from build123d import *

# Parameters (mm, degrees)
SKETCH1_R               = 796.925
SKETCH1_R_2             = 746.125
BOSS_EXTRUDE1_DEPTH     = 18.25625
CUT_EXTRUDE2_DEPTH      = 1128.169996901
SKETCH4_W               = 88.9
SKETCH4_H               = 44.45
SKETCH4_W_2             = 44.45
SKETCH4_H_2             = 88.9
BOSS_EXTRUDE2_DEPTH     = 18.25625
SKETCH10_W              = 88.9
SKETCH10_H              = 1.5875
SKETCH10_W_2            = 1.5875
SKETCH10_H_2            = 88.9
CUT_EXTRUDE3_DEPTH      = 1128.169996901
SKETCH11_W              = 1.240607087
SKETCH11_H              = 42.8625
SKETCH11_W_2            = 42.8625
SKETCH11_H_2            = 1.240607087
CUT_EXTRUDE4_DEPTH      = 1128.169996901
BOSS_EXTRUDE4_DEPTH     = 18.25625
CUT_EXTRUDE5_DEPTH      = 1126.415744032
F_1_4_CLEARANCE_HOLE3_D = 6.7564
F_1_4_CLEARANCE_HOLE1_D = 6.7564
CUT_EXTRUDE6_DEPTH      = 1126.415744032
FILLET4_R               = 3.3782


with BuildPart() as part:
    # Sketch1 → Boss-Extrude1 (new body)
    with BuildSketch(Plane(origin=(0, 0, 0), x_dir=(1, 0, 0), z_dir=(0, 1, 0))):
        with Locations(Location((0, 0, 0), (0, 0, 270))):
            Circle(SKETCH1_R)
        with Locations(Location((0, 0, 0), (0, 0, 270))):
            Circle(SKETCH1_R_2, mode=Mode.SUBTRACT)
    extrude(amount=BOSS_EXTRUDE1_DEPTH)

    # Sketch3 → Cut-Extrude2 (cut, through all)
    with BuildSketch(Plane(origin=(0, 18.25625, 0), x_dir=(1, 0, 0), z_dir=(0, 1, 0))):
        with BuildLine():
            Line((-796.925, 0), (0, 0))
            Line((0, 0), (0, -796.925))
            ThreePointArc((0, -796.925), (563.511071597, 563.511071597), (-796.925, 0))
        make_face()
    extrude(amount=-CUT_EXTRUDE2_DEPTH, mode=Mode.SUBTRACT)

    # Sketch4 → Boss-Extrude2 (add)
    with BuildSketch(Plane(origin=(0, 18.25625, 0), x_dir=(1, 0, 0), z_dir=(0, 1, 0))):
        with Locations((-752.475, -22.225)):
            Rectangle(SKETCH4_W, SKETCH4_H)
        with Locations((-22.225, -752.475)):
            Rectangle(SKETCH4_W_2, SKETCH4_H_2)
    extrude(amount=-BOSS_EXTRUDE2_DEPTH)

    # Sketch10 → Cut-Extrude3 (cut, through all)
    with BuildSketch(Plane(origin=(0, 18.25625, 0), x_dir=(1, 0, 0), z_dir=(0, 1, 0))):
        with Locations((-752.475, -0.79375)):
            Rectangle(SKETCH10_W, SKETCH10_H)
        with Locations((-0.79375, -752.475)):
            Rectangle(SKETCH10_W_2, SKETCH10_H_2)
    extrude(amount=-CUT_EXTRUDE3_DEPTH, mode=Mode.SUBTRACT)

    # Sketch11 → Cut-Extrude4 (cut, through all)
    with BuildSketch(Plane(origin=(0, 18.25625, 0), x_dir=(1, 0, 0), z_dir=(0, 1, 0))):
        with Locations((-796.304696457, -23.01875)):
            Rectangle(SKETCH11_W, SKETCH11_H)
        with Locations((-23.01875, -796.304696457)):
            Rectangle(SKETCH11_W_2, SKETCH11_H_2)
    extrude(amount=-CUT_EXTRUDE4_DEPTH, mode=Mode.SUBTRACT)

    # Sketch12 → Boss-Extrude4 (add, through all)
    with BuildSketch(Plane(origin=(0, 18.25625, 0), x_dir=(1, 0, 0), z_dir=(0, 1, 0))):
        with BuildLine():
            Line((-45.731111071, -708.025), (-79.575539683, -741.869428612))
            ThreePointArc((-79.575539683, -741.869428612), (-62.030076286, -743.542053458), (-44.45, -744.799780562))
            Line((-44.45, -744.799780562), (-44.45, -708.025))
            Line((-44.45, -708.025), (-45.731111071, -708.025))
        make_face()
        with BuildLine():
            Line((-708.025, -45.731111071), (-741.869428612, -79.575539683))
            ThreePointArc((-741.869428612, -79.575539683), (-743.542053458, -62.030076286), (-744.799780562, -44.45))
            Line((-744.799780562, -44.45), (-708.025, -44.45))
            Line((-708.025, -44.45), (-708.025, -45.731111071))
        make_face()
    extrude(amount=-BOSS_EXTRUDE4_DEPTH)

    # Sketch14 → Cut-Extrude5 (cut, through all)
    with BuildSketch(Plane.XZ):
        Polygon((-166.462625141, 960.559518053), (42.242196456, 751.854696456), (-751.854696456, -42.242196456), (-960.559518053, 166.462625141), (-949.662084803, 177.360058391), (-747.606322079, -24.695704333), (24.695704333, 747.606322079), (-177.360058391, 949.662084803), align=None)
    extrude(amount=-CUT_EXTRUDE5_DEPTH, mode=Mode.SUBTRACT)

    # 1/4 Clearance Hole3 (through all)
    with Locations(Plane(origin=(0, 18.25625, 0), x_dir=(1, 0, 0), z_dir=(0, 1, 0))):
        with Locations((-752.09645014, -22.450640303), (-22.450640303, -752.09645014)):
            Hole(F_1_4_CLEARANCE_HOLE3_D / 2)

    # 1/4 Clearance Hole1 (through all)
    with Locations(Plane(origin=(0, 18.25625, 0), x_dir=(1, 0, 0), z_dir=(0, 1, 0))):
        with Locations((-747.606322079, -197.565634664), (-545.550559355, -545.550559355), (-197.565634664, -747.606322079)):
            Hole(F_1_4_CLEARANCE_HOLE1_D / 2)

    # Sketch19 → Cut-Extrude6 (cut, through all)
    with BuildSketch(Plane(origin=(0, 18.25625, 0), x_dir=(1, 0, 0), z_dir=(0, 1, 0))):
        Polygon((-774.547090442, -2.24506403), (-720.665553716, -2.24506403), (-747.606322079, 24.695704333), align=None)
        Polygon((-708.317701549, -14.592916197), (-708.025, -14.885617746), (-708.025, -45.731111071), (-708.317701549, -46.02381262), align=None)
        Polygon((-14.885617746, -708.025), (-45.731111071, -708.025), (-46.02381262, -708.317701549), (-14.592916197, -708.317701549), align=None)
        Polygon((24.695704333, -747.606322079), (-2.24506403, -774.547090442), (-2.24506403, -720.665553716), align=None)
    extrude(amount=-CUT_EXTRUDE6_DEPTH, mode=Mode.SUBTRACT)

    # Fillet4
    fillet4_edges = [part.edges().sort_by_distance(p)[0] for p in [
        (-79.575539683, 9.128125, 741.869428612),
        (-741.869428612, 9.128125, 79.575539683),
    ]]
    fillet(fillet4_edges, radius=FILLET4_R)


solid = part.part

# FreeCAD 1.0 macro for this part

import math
import FreeCAD as App
import Part
import Sketcher

V = App.Vector
Q = App.Units.Quantity


def edges_at(feature, points):
    """Names of the edges that pass closest to the given points."""
    edges = feature.Shape.Edges
    near = lambda p: min(range(len(edges)), key=lambda i: edges[i].distToShape(Part.Vertex(*p))[0])
    return sorted({f"Edge{near(p) + 1}" for p in points})

doc = App.newDocument("Part")
body = doc.addObject("PartDesign::Body", "Body")

sketch1 = doc.addObject("Sketcher::SketchObject", "Sketch")
body.addObject(sketch1)
sketch1.AttachmentSupport = (doc.XZ_Plane, [""])
sketch1.MapMode = "FlatFace"
sketch1.addGeometry([
    Part.Circle(V(0, 0, 0), V(0, 0, 1), 797),
    Part.Circle(V(0, 0, 0), V(0, 0, 1), 746),
], False)
sketch1.addConstraint([
    Sketcher.Constraint("Coincident", 0, 3, -1, 1),
    Sketcher.Constraint("Coincident", 1, 3, -1, 1),
    Sketcher.Constraint("Diameter", 0, Q("62.75 in")),
    Sketcher.Constraint("Diameter", 1, Q("58.75 in")),
])
pad1 = doc.addObject("PartDesign::Pad", "Pad")
body.addObject(pad1)
pad1.Profile = sketch1
pad1.Length = Q("0.71875 in")
pad1.Reversed = True

sketch2 = doc.addObject("Sketcher::SketchObject", "Sketch001")
body.addObject(sketch2)
sketch2.AttachmentSupport = (doc.XZ_Plane, [""])
sketch2.MapMode = "FlatFace"
sketch2.AttachmentOffset = App.Placement(V(0, 0, -0.71875 * 25.4), App.Rotation())
sketch2.addGeometry([
    Part.LineSegment(V(-797, 0, 0), V(0, 0, 0)),
    Part.LineSegment(V(0, 0, 0), V(0, 797, 0)),
    Part.ArcOfCircle(Part.Circle(V(0, 0, 0), V(0, 0, 1), 797), math.radians(180), math.radians(450)),
], False)
sketch2.addConstraint([
    Sketcher.Constraint("Coincident", 0, 2, 1, 1),
    Sketcher.Constraint("Coincident", 1, 2, 2, 2),
    Sketcher.Constraint("Coincident", 2, 1, 0, 1),
    Sketcher.Constraint("Horizontal", 0),
    Sketcher.Constraint("Vertical", 1),
    Sketcher.Constraint("Coincident", 2, 3, -1, 1),
    Sketcher.Constraint("Coincident", 0, 2, -1, 1),
    Sketcher.Constraint("Radius", 2, Q("31.375 in")),
])
pocket1 = doc.addObject("PartDesign::Pocket", "Pocket")
body.addObject(pocket1)
pocket1.Profile = sketch2
pocket1.Type = "ThroughAll"
pocket1.Reversed = True

sketch3 = doc.addObject("Sketcher::SketchObject", "Sketch002")
body.addObject(sketch3)
sketch3.AttachmentSupport = (doc.XZ_Plane, [""])
sketch3.MapMode = "FlatFace"
sketch3.AttachmentOffset = App.Placement(V(0, 0, -0.71875 * 25.4), App.Rotation())
sketch3.addGeometry([
    Part.LineSegment(V(-797, 0, 0), V(-797, 44, 0)),
    Part.LineSegment(V(-797, 44, 0), V(-708, 44, 0)),
    Part.LineSegment(V(-708, 44, 0), V(-708, 0, 0)),
    Part.LineSegment(V(-708, 0, 0), V(-797, 0, 0)),
    Part.LineSegment(V(-44, 708, 0), V(-44, 797, 0)),
    Part.LineSegment(V(-44, 797, 0), V(0, 797, 0)),
    Part.LineSegment(V(0, 797, 0), V(0, 708, 0)),
    Part.LineSegment(V(0, 708, 0), V(-44, 708, 0)),
], False)
sketch3.addConstraint([
    Sketcher.Constraint("Coincident", 0, 2, 1, 1),
    Sketcher.Constraint("Coincident", 1, 2, 2, 1),
    Sketcher.Constraint("Coincident", 2, 2, 3, 1),
    Sketcher.Constraint("Coincident", 3, 2, 0, 1),
    Sketcher.Constraint("Coincident", 4, 2, 5, 1),
    Sketcher.Constraint("Coincident", 5, 2, 6, 1),
    Sketcher.Constraint("Coincident", 6, 2, 7, 1),
    Sketcher.Constraint("Coincident", 7, 2, 4, 1),
    Sketcher.Constraint("Vertical", 0),
    Sketcher.Constraint("Horizontal", 1),
    Sketcher.Constraint("Vertical", 2),
    Sketcher.Constraint("Horizontal", 3),
    Sketcher.Constraint("Vertical", 4),
    Sketcher.Constraint("Horizontal", 5),
    Sketcher.Constraint("Vertical", 6),
    Sketcher.Constraint("Horizontal", 7),
    Sketcher.Constraint("PointOnObject", 2, 2, -1),
    Sketcher.Constraint("PointOnObject", 5, 2, -2),
    Sketcher.Constraint("Equal", 7, 0),
    Sketcher.Constraint("Equal", 3, 4),
    Sketcher.Constraint("DistanceX", 1, 1, 1, 2, Q("3.5 in")),
    Sketcher.Constraint("DistanceX", 5, 1, 5, 2, Q("1.75 in")),
    Sketcher.Constraint("DistanceX", 0, 2, -1, 1, Q("31.375 in")),
    Sketcher.Constraint("DistanceY", -1, 1, 4, 2, Q("31.375 in")),
])
pad2 = doc.addObject("PartDesign::Pad", "Pad001")
body.addObject(pad2)
pad2.Profile = sketch3
pad2.Length = Q("0.71875 in")

sketch4 = doc.addObject("Sketcher::SketchObject", "Sketch003")
body.addObject(sketch4)
sketch4.AttachmentSupport = (doc.XZ_Plane, [""])
sketch4.MapMode = "FlatFace"
sketch4.AttachmentOffset = App.Placement(V(0, 0, -0.71875 * 25.4), App.Rotation())
sketch4.addGeometry([
    Part.LineSegment(V(-796.9, 0, 0), V(-796.9, 1.6, 0)),
    Part.LineSegment(V(-796.9, 1.6, 0), V(-708, 1.6, 0)),
    Part.LineSegment(V(-708, 1.6, 0), V(-708, 0, 0)),
    Part.LineSegment(V(-708, 0, 0), V(-796.9, 0, 0)),
    Part.LineSegment(V(-1.6, 708, 0), V(-1.6, 796.9, 0)),
    Part.LineSegment(V(-1.6, 796.9, 0), V(0, 796.9, 0)),
    Part.LineSegment(V(0, 796.9, 0), V(0, 708, 0)),
    Part.LineSegment(V(0, 708, 0), V(-1.6, 708, 0)),
], False)
sketch4.addConstraint([
    Sketcher.Constraint("Coincident", 0, 2, 1, 1),
    Sketcher.Constraint("Coincident", 1, 2, 2, 1),
    Sketcher.Constraint("Coincident", 2, 2, 3, 1),
    Sketcher.Constraint("Coincident", 3, 2, 0, 1),
    Sketcher.Constraint("Coincident", 4, 2, 5, 1),
    Sketcher.Constraint("Coincident", 5, 2, 6, 1),
    Sketcher.Constraint("Coincident", 6, 2, 7, 1),
    Sketcher.Constraint("Coincident", 7, 2, 4, 1),
    Sketcher.Constraint("Vertical", 0),
    Sketcher.Constraint("Horizontal", 1),
    Sketcher.Constraint("Vertical", 2),
    Sketcher.Constraint("Horizontal", 3),
    Sketcher.Constraint("Vertical", 4),
    Sketcher.Constraint("Horizontal", 5),
    Sketcher.Constraint("Vertical", 6),
    Sketcher.Constraint("Horizontal", 7),
    Sketcher.Constraint("PointOnObject", 2, 2, -1),
    Sketcher.Constraint("PointOnObject", 5, 2, -2),
    Sketcher.Constraint("Equal", 7, 0),
    Sketcher.Constraint("Equal", 3, 4),
    Sketcher.Constraint("DistanceX", 1, 1, 1, 2, Q("3.5 in")),
    Sketcher.Constraint("DistanceX", 5, 1, 5, 2, Q("0.0625 in")),
    Sketcher.Constraint("DistanceX", 0, 2, -1, 1, Q("31.375 in")),
    Sketcher.Constraint("DistanceY", -1, 1, 4, 2, Q("31.375 in")),
])
pocket2 = doc.addObject("PartDesign::Pocket", "Pocket001")
body.addObject(pocket2)
pocket2.Profile = sketch4
pocket2.Type = "ThroughAll"
pocket2.Reversed = True

sketch5 = doc.addObject("Sketcher::SketchObject", "Sketch004")
body.addObject(sketch5)
sketch5.AttachmentSupport = (doc.XZ_Plane, [""])
sketch5.MapMode = "FlatFace"
sketch5.AttachmentOffset = App.Placement(V(0, 0, -0.71875 * 25.4), App.Rotation())
sketch5.addGeometry([
    Part.LineSegment(V(-796.9, 1.6, 0), V(-796.9, 44.5, 0)),
    Part.LineSegment(V(-796.9, 44.5, 0), V(-795.7, 44.5, 0)),
    Part.LineSegment(V(-795.7, 44.5, 0), V(-795.7, 1.6, 0)),
    Part.LineSegment(V(-795.7, 1.6, 0), V(-796.9, 1.6, 0)),
    Part.LineSegment(V(-44.5, 795.7, 0), V(-44.5, 796.9, 0)),
    Part.LineSegment(V(-44.5, 796.9, 0), V(-1.6, 796.9, 0)),
    Part.LineSegment(V(-1.6, 796.9, 0), V(-1.6, 795.7, 0)),
    Part.LineSegment(V(-1.6, 795.7, 0), V(-44.5, 795.7, 0)),
], False)
sketch5.addConstraint([
    Sketcher.Constraint("Coincident", 0, 2, 1, 1),
    Sketcher.Constraint("Coincident", 1, 2, 2, 1),
    Sketcher.Constraint("Coincident", 2, 2, 3, 1),
    Sketcher.Constraint("Coincident", 3, 2, 0, 1),
    Sketcher.Constraint("Coincident", 4, 2, 5, 1),
    Sketcher.Constraint("Coincident", 5, 2, 6, 1),
    Sketcher.Constraint("Coincident", 6, 2, 7, 1),
    Sketcher.Constraint("Coincident", 7, 2, 4, 1),
    Sketcher.Constraint("Vertical", 0),
    Sketcher.Constraint("Horizontal", 1),
    Sketcher.Constraint("Vertical", 2),
    Sketcher.Constraint("Horizontal", 3),
    Sketcher.Constraint("Vertical", 4),
    Sketcher.Constraint("Horizontal", 5),
    Sketcher.Constraint("Vertical", 6),
    Sketcher.Constraint("Horizontal", 7),
    Sketcher.Constraint("Equal", 7, 0),
    Sketcher.Constraint("Equal", 3, 4),
    Sketcher.Constraint("DistanceX", 5, 1, 5, 2, Q("1.6875 in")),
    Sketcher.Constraint("DistanceY", -1, 1, 0, 2, Q("1.75 in")),
    Sketcher.Constraint("DistanceX", 4, 2, -1, 1, Q("1.75 in")),
    Sketcher.Constraint("DistanceX", 0, 2, -1, 1, Q("31.375 in")),
    Sketcher.Constraint("DistanceY", -1, 1, 4, 2, Q("31.375 in")),
    Sketcher.Constraint("DistanceX", 1, 1, 1, 2, Q("1.240607 mm")),
])
pocket3 = doc.addObject("PartDesign::Pocket", "Pocket002")
body.addObject(pocket3)
pocket3.Profile = sketch5
pocket3.Type = "ThroughAll"
pocket3.Reversed = True

sketch6 = doc.addObject("Sketcher::SketchObject", "Sketch005")
body.addObject(sketch6)
sketch6.AttachmentSupport = (doc.XZ_Plane, [""])
sketch6.MapMode = "FlatFace"
sketch6.AttachmentOffset = App.Placement(V(0, 0, -0.71875 * 25.4), App.Rotation())
sketch6.addGeometry([
    Part.LineSegment(V(-45.7, 708, 0), V(-79.6, 741.9, 0)),
    Part.ArcOfCircle(Part.Circle(V(0, 0, 0), V(0, 0, 1), 746.1), math.radians(93.42), math.radians(96.12)),
    Part.LineSegment(V(-44.5, 744.8, 0), V(-44.5, 708, 0)),
    Part.LineSegment(V(-44.5, 708, 0), V(-45.7, 708, 0)),
    Part.LineSegment(V(-741.9, 79.6, 0), V(-708, 45.7, 0)),
    Part.LineSegment(V(-708, 45.7, 0), V(-708, 44.5, 0)),
    Part.LineSegment(V(-708, 44.5, 0), V(-744.8, 44.5, 0)),
    Part.ArcOfCircle(Part.Circle(V(0, 0, 0), V(0, 0, 1), 746.1), math.radians(173.88), math.radians(176.58)),
], False)
sketch6.addConstraint([
    Sketcher.Constraint("Coincident", 0, 2, 1, 2),
    Sketcher.Constraint("Coincident", 1, 1, 2, 1),
    Sketcher.Constraint("Coincident", 2, 2, 3, 1),
    Sketcher.Constraint("Coincident", 3, 2, 0, 1),
    Sketcher.Constraint("Coincident", 4, 2, 5, 1),
    Sketcher.Constraint("Coincident", 5, 2, 6, 1),
    Sketcher.Constraint("Coincident", 6, 2, 7, 2),
    Sketcher.Constraint("Coincident", 7, 1, 4, 1),
    Sketcher.Constraint("Vertical", 2),
    Sketcher.Constraint("Horizontal", 3),
    Sketcher.Constraint("Vertical", 5),
    Sketcher.Constraint("Horizontal", 6),
    Sketcher.Constraint("Coincident", 1, 3, -1, 1),
    Sketcher.Constraint("Coincident", 7, 3, -1, 1),
    Sketcher.Constraint("Equal", 1, 7),
    Sketcher.Constraint("Parallel", 0, 4),
    Sketcher.Constraint("Equal", 6, 2),
    Sketcher.Constraint("Equal", 3, 5),
    Sketcher.Constraint("Equal", 0, 4),
    Sketcher.Constraint("Angle", 0, Q("135 deg")),
    Sketcher.Constraint("Radius", 1, Q("29.375 in")),
    Sketcher.Constraint("DistanceX", 2, 2, -1, 1, Q("1.75 in")),
    Sketcher.Constraint("DistanceY", -1, 1, 2, 2, Q("27.875 in")),
    Sketcher.Constraint("DistanceX", 3, 2, 3, 1, Q("1.281111 mm")),
])
pad3 = doc.addObject("PartDesign::Pad", "Pad002")
body.addObject(pad3)
pad3.Profile = sketch6
pad3.Length = Q("0.71875 in")

sketch7 = doc.addObject("Sketcher::SketchObject", "Sketch006")
body.addObject(sketch7)
sketch7.AttachmentSupport = (doc.XZ_Plane, [""])
sketch7.MapMode = "FlatFace"
sketch7.addGeometry([
    Part.LineSegment(V(42, 752, 0), V(-166, 961, 0)),
    Part.LineSegment(V(-166, 961, 0), V(-177, 950, 0)),
    Part.LineSegment(V(-177, 950, 0), V(25, 748, 0)),
    Part.LineSegment(V(25, 748, 0), V(-748, -25, 0)),
    Part.LineSegment(V(-748, -25, 0), V(-950, 177, 0)),
    Part.LineSegment(V(-950, 177, 0), V(-961, 166, 0)),
    Part.LineSegment(V(-961, 166, 0), V(-752, -42, 0)),
    Part.LineSegment(V(-752, -42, 0), V(42, 752, 0)),
], False)
sketch7.addConstraint([
    Sketcher.Constraint("Coincident", 0, 2, 1, 1),
    Sketcher.Constraint("Coincident", 1, 2, 2, 1),
    Sketcher.Constraint("Coincident", 2, 2, 3, 1),
    Sketcher.Constraint("Coincident", 3, 2, 4, 1),
    Sketcher.Constraint("Coincident", 4, 2, 5, 1),
    Sketcher.Constraint("Coincident", 5, 2, 6, 1),
    Sketcher.Constraint("Coincident", 6, 2, 7, 1),
    Sketcher.Constraint("Coincident", 7, 2, 0, 1),
    Sketcher.Constraint("Perpendicular", 0, 1),
    Sketcher.Constraint("Perpendicular", 1, 2),
    Sketcher.Constraint("Perpendicular", 2, 3),
    Sketcher.Constraint("Perpendicular", 3, 4),
    Sketcher.Constraint("Perpendicular", 4, 5),
    Sketcher.Constraint("Perpendicular", 5, 6),
    Sketcher.Constraint("Perpendicular", 6, 7),
    Sketcher.Constraint("Equal", 2, 4),
    Sketcher.Constraint("Equal", 1, 5),
    Sketcher.Constraint("Distance", 3, Q("43 in")),
    Sketcher.Constraint("Angle", 0, Q("135 deg")),
    Sketcher.Constraint("Distance", 2, Q("11.25 in")),
    Sketcher.Constraint("DistanceX", 6, 2, 2, 2, Q("776.550401 mm")),
    Sketcher.Constraint("Distance", 0, Q("295.153189 mm")),
    Sketcher.Constraint("DistanceY", -1, 1, 0, 2, Q("960.559518 mm")),
    Sketcher.Constraint("DistanceX", 1, 2, -1, 1, Q("177.360058 mm")),
])
pocket4 = doc.addObject("PartDesign::Pocket", "Pocket003")
body.addObject(pocket4)
pocket4.Profile = sketch7
pocket4.Type = "ThroughAll"

sketch8 = doc.addObject("Sketcher::SketchObject", "Sketch007")
body.addObject(sketch8)
sketch8.AttachmentSupport = (doc.XZ_Plane, [""])
sketch8.MapMode = "FlatFace"
sketch8.AttachmentOffset = App.Placement(V(0, 0, -0.71875 * 25.4), App.Rotation())
sketch8.addGeometry([
    Part.Circle(V(-752.1, 22.5, 0), V(0, 0, 1), 3.4),
    Part.Circle(V(-22.5, 752.1, 0), V(0, 0, 1), 3.4),
], False)
sketch8.addConstraint([
    Sketcher.Constraint("Equal", 0, 1),
    Sketcher.Constraint("Diameter", 0, Q("0.266 in")),
    Sketcher.Constraint("DistanceX", 0, 3, -1, 1, Q("752.09645 mm")),
    Sketcher.Constraint("DistanceY", -1, 1, 0, 3, Q("22.45064 mm")),
    Sketcher.Constraint("DistanceX", 1, 3, -1, 1, Q("22.45064 mm")),
    Sketcher.Constraint("DistanceY", -1, 1, 1, 3, Q("752.09645 mm")),
])
doc.recompute()
hole = doc.addObject("PartDesign::Hole", "Hole")
body.addObject(hole)
hole.Profile = sketch8
hole.ThreadType = "None"
hole.Diameter = Q("0.266 in")
hole.DepthType = "ThroughAll"
hole.Reversed = True

sketch9 = doc.addObject("Sketcher::SketchObject", "Sketch008")
body.addObject(sketch9)
sketch9.AttachmentSupport = (doc.XZ_Plane, [""])
sketch9.MapMode = "FlatFace"
sketch9.AttachmentOffset = App.Placement(V(0, 0, -0.71875 * 25.4), App.Rotation())
sketch9.addGeometry([
    Part.Circle(V(-747.6, 197.6, 0), V(0, 0, 1), 3.4),
    Part.Circle(V(-545.6, 545.6, 0), V(0, 0, 1), 3.4),
    Part.Circle(V(-197.6, 747.6, 0), V(0, 0, 1), 3.4),
], False)
sketch9.addConstraint([
    Sketcher.Constraint("Equal", 0, 1),
    Sketcher.Constraint("Equal", 1, 2),
    Sketcher.Constraint("Diameter", 0, Q("0.266 in")),
    Sketcher.Constraint("DistanceX", 1, 3, -1, 1, Q("545.550559 mm")),
    Sketcher.Constraint("DistanceY", -1, 1, 1, 3, Q("545.550559 mm")),
    Sketcher.Constraint("DistanceX", 0, 3, -1, 1, Q("747.606322 mm")),
    Sketcher.Constraint("DistanceY", -1, 1, 0, 3, Q("197.565635 mm")),
    Sketcher.Constraint("DistanceX", 2, 3, -1, 1, Q("197.565635 mm")),
    Sketcher.Constraint("DistanceY", -1, 1, 2, 3, Q("747.606322 mm")),
])
doc.recompute()
hole2 = doc.addObject("PartDesign::Hole", "Hole001")
body.addObject(hole2)
hole2.Profile = sketch9
hole2.ThreadType = "None"
hole2.Diameter = Q("0.266 in")
hole2.DepthType = "ThroughAll"
hole2.Reversed = True

sketch10 = doc.addObject("Sketcher::SketchObject", "Sketch009")
body.addObject(sketch10)
sketch10.AttachmentSupport = (doc.XZ_Plane, [""])
sketch10.MapMode = "FlatFace"
sketch10.AttachmentOffset = App.Placement(V(0, 0, -0.71875 * 25.4), App.Rotation())
sketch10.addGeometry([
    Part.LineSegment(V(-774.55, 2.25, 0), V(-720.67, 2.25, 0)),
    Part.LineSegment(V(-720.67, 2.25, 0), V(-747.61, -24.7, 0)),
    Part.LineSegment(V(-747.61, -24.7, 0), V(-774.55, 2.25, 0)),
    Part.LineSegment(V(-708.02, 14.89, 0), V(-708.32, 14.59, 0)),
    Part.LineSegment(V(-708.32, 14.59, 0), V(-708.32, 46.02, 0)),
    Part.LineSegment(V(-708.32, 46.02, 0), V(-708.02, 45.73, 0)),
    Part.LineSegment(V(-708.02, 45.73, 0), V(-708.02, 14.89, 0)),
    Part.LineSegment(V(-14.89, 708.02, 0), V(-45.73, 708.02, 0)),
    Part.LineSegment(V(-45.73, 708.02, 0), V(-46.02, 708.32, 0)),
    Part.LineSegment(V(-46.02, 708.32, 0), V(-14.59, 708.32, 0)),
    Part.LineSegment(V(-14.59, 708.32, 0), V(-14.89, 708.02, 0)),
    Part.LineSegment(V(-2.25, 774.55, 0), V(24.7, 747.61, 0)),
    Part.LineSegment(V(24.7, 747.61, 0), V(-2.25, 720.67, 0)),
    Part.LineSegment(V(-2.25, 720.67, 0), V(-2.25, 774.55, 0)),
], False)
sketch10.addConstraint([
    Sketcher.Constraint("Coincident", 0, 2, 1, 1),
    Sketcher.Constraint("Coincident", 1, 2, 2, 1),
    Sketcher.Constraint("Coincident", 2, 2, 0, 1),
    Sketcher.Constraint("Coincident", 3, 2, 4, 1),
    Sketcher.Constraint("Coincident", 4, 2, 5, 1),
    Sketcher.Constraint("Coincident", 5, 2, 6, 1),
    Sketcher.Constraint("Coincident", 6, 2, 3, 1),
    Sketcher.Constraint("Coincident", 7, 2, 8, 1),
    Sketcher.Constraint("Coincident", 8, 2, 9, 1),
    Sketcher.Constraint("Coincident", 9, 2, 10, 1),
    Sketcher.Constraint("Coincident", 10, 2, 7, 1),
    Sketcher.Constraint("Coincident", 11, 2, 12, 1),
    Sketcher.Constraint("Coincident", 12, 2, 13, 1),
    Sketcher.Constraint("Coincident", 13, 2, 11, 1),
    Sketcher.Constraint("Horizontal", 0),
    Sketcher.Constraint("Vertical", 4),
    Sketcher.Constraint("Vertical", 6),
    Sketcher.Constraint("Horizontal", 7),
    Sketcher.Constraint("Horizontal", 9),
    Sketcher.Constraint("Vertical", 13),
    Sketcher.Constraint("Perpendicular", 1, 2),
    Sketcher.Constraint("Perpendicular", 2, 3),
    Sketcher.Constraint("Perpendicular", 3, 5),
    Sketcher.Constraint("Parallel", 5, 8),
    Sketcher.Constraint("Perpendicular", 8, 10),
    Sketcher.Constraint("Perpendicular", 10, 11),
    Sketcher.Constraint("Perpendicular", 11, 12),
    Sketcher.Constraint("Equal", 9, 4),
    Sketcher.Constraint("Equal", 7, 6),
    Sketcher.Constraint("Equal", 0, 13),
    Sketcher.Constraint("Equal", 1, 2),
    Sketcher.Constraint("Distance", 1, Q("1.5 in")),
    Sketcher.Constraint("DistanceX", 5, 2, -1, 1, Q("27.875 in")),
    Sketcher.Constraint("DistanceY", -1, 1, 7, 2, Q("27.875 in")),
    Sketcher.Constraint("DistanceX", 3, 2, -1, 1, Q("708.317702 mm")),
    Sketcher.Constraint("DistanceX", 7, 2, 7, 1, Q("30.845493 mm")),
    Sketcher.Constraint("DistanceX", 2, 2, -1, 1, Q("774.54709 mm")),
    Sketcher.Constraint("DistanceY", -1, 1, 5, 2, Q("45.731111 mm")),
    Sketcher.Constraint("DistanceX", 7, 2, -1, 1, Q("45.731111 mm")),
    Sketcher.Constraint("DistanceY", -1, 1, 13, 2, Q("774.54709 mm")),
    Sketcher.Constraint("DistanceY", 1, 2, 3, 2, Q("39.288621 mm")),
    Sketcher.Constraint("DistanceX", 9, 2, 11, 2, Q("39.288621 mm")),
])
pocket5 = doc.addObject("PartDesign::Pocket", "Pocket004")
body.addObject(pocket5)
pocket5.Profile = sketch10
pocket5.Type = "ThroughAll"
pocket5.Reversed = True
doc.recompute()

fillet = doc.addObject("PartDesign::Fillet", "Fillet")
body.addObject(fillet)
fillet.Base = (pocket5, edges_at(pocket5, [(-79.576, 9.128, 741.869), (-741.869, 9.128, 79.576)]))
fillet.Radius = Q("0.133 in")

doc.recompute()
